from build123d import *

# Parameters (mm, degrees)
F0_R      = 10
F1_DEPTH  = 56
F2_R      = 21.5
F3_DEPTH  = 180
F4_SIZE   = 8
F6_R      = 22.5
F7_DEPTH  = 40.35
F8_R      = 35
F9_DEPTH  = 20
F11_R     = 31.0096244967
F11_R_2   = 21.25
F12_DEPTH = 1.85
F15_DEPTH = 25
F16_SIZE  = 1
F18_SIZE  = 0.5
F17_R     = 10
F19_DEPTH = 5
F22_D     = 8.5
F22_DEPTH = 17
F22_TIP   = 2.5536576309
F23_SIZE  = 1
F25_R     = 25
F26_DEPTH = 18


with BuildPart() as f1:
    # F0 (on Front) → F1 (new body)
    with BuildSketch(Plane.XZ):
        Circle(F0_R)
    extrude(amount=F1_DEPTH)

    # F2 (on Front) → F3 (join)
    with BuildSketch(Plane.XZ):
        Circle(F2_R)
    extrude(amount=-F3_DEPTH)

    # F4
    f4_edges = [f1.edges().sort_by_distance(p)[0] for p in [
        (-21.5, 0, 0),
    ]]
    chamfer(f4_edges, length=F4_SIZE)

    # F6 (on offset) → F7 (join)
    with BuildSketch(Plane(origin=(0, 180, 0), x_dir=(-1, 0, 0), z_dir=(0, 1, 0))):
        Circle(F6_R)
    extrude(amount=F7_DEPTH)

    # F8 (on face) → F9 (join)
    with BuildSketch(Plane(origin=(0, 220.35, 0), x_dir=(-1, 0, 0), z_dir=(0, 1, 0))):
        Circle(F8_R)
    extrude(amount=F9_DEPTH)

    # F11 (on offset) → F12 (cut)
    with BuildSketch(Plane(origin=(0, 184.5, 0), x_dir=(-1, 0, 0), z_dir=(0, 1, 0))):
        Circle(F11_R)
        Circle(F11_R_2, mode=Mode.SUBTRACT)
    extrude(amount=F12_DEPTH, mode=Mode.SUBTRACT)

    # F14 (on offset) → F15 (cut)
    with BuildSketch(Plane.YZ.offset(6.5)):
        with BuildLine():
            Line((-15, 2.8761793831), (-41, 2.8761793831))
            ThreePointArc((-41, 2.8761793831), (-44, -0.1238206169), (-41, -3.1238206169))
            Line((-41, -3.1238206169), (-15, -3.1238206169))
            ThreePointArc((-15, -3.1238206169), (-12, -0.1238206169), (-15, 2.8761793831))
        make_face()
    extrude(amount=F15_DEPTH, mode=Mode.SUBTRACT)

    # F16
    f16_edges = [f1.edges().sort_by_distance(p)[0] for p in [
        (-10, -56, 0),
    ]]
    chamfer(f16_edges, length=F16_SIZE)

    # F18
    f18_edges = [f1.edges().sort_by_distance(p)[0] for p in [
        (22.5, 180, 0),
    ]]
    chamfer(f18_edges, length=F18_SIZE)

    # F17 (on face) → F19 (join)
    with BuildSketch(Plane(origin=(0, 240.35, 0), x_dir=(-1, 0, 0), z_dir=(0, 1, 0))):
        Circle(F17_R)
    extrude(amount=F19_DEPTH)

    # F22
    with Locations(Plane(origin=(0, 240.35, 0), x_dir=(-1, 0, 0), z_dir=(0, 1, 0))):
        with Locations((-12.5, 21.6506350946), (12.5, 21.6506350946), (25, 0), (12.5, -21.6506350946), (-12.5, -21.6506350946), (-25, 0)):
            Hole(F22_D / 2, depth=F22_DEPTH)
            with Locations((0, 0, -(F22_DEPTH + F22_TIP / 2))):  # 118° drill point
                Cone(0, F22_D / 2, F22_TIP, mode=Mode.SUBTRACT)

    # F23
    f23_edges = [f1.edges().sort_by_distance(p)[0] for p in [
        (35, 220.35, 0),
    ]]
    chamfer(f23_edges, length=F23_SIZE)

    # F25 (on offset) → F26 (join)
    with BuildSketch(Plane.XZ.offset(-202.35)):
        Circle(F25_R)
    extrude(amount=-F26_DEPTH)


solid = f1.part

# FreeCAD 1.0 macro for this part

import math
import FreeCAD as App
import Part
import Sketcher
from FreeCAD import Vector
Q = App.Units.Quantity


def edges_at(feature, points):
    """Names of the edges that pass closest to the given points."""
    edges = feature.Shape.Edges
    near = lambda p: min(range(len(edges)), key=lambda i: edges[i].distToShape(Part.Vertex(*p))[0])
    return sorted({f"Edge{near(p) + 1}" for p in points})

doc = App.newDocument("Part")
body = doc.addObject("PartDesign::Body", "Body")

# Sketch on XZ plane
sketch1 = body.newObject("Sketcher::SketchObject", "Sketch")
sketch1.AttachmentSupport = (doc.getObject("XZ_Plane"), [""])
sketch1.MapMode = "FlatFace"
sketch1.addGeometry(Part.Circle(Vector(0, 0, 0), Vector(0, 0, 1), 10), False)
sketch1.addConstraint(Sketcher.Constraint("Coincident", 0, 3, -1, 1))
sketch1.addConstraint(Sketcher.Constraint("Diameter", 0, Q("20 mm")))
pad1 = body.newObject("PartDesign::Pad", "Pad")
pad1.Profile = sketch1
pad1.Length = 56

# Sketch on XZ plane
sketch2 = body.newObject("Sketcher::SketchObject", "Sketch001")
sketch2.AttachmentSupport = (doc.getObject("XZ_Plane"), [""])
sketch2.MapMode = "FlatFace"
sketch2.addGeometry(Part.Circle(Vector(0, 0, 0), Vector(0, 0, 1), 22), False)
sketch2.addConstraint(Sketcher.Constraint("Coincident", 0, 3, -1, 1))
sketch2.addConstraint(Sketcher.Constraint("Diameter", 0, Q("43 mm")))
pad2 = body.newObject("PartDesign::Pad", "Pad001")
pad2.Profile = sketch2
pad2.Length = 180
pad2.Reversed = True
doc.recompute()

chamfer = body.newObject("PartDesign::Chamfer", "Chamfer")
chamfer.Base = (pad2, edges_at(pad2, [(-21.5, 0, 0)]))
chamfer.Size = 8

# Sketch on XZ plane
sketch3 = body.newObject("Sketcher::SketchObject", "Sketch002")
sketch3.AttachmentSupport = (doc.getObject("XZ_Plane"), [""])
sketch3.MapMode = "FlatFace"
sketch3.AttachmentOffset = App.Placement(Vector(0, 0, -180), App.Rotation())
sketch3.addGeometry(Part.Circle(Vector(0, 0, 0), Vector(0, 0, 1), 22), False)
sketch3.addConstraint(Sketcher.Constraint("Coincident", 0, 3, -1, 1))
sketch3.addConstraint(Sketcher.Constraint("Diameter", 0, Q("45 mm")))
pad3 = body.newObject("PartDesign::Pad", "Pad002")
pad3.Profile = sketch3
pad3.Length = 40.35
pad3.Reversed = True

# Sketch on XZ plane
sketch4 = body.newObject("Sketcher::SketchObject", "Sketch003")
sketch4.AttachmentSupport = (doc.getObject("XZ_Plane"), [""])
sketch4.MapMode = "FlatFace"
sketch4.AttachmentOffset = App.Placement(Vector(0, 0, -220.35), App.Rotation())
sketch4.addGeometry(Part.Circle(Vector(0, 0, 0), Vector(0, 0, 1), 35), False)
sketch4.addConstraint(Sketcher.Constraint("Coincident", 0, 3, -1, 1))
sketch4.addConstraint(Sketcher.Constraint("Diameter", 0, Q("70 mm")))
pad4 = body.newObject("PartDesign::Pad", "Pad003")
pad4.Profile = sketch4
pad4.Length = 20
pad4.Reversed = True

# Sketch on XZ plane
sketch5 = body.newObject("Sketcher::SketchObject", "Sketch004")
sketch5.AttachmentSupport = (doc.getObject("XZ_Plane"), [""])
sketch5.MapMode = "FlatFace"
sketch5.AttachmentOffset = App.Placement(Vector(0, 0, -184.5), App.Rotation())
sketch5.addGeometry(Part.Circle(Vector(0, 0, 0), Vector(0, 0, 1), 31), False)
sketch5.addGeometry(Part.Circle(Vector(0, 0, 0), Vector(0, 0, 1), 21), False)
sketch5.addConstraint(Sketcher.Constraint("Coincident", 0, 3, -1, 1))
sketch5.addConstraint(Sketcher.Constraint("Coincident", 1, 3, -1, 1))
sketch5.addConstraint(Sketcher.Constraint("Diameter", 1, Q("42.5 mm")))
sketch5.addConstraint(Sketcher.Constraint("Diameter", 0, Q("62.019249 mm")))
pocket1 = body.newObject("PartDesign::Pocket", "Pocket")
pocket1.Profile = sketch5
pocket1.Length = 1.85

# Sketch on YZ plane
sketch6 = body.newObject("Sketcher::SketchObject", "Sketch005")
sketch6.AttachmentSupport = (doc.getObject("YZ_Plane"), [""])
sketch6.MapMode = "FlatFace"
sketch6.AttachmentOffset = App.Placement(Vector(0, 0, 6.5), App.Rotation())
sketch6.addGeometry(Part.LineSegment(Vector(-15, 2.9, 0), Vector(-41, 2.9, 0)), False)
sketch6.addGeometry(Part.ArcOfCircle(Part.Circle(Vector(-41, -0.1, 0), Vector(0, 0, 1), 3), math.radians(90), math.radians(270)), False)
sketch6.addGeometry(Part.LineSegment(Vector(-41, -3.1, 0), Vector(-15, -3.1, 0)), False)
sketch6.addGeometry(Part.ArcOfCircle(Part.Circle(Vector(-15, -0.1, 0), Vector(0, 0, 1), 3), math.radians(-90), math.radians(90)), False)
sketch6.addConstraint(Sketcher.Constraint("Tangent", 0, 2, 1, 1))
sketch6.addConstraint(Sketcher.Constraint("Tangent", 1, 2, 2, 1))
sketch6.addConstraint(Sketcher.Constraint("Tangent", 2, 2, 3, 1))
sketch6.addConstraint(Sketcher.Constraint("Tangent", 3, 2, 0, 1))
sketch6.addConstraint(Sketcher.Constraint("Horizontal", 0))
sketch6.addConstraint(Sketcher.Constraint("Horizontal", 2))
sketch6.addConstraint(Sketcher.Constraint("Radius", 1, Q("3 mm")))
sketch6.addConstraint(Sketcher.Constraint("DistanceX", 0, 2, 0, 1, Q("26 mm")))
sketch6.addConstraint(Sketcher.Constraint("DistanceX", 1, 3, -1, 1, Q("41 mm")))
sketch6.addConstraint(Sketcher.Constraint("DistanceY", 1, 3, -1, 1, Q("0.123821 mm")))
pocket2 = body.newObject("PartDesign::Pocket", "Pocket001")
pocket2.Profile = sketch6
pocket2.Length = 25
pocket2.Reversed = True
doc.recompute()

chamfer2 = body.newObject("PartDesign::Chamfer", "Chamfer001")
chamfer2.Base = (pocket2, edges_at(pocket2, [(-10, -56, 0)]))
chamfer2.Size = 1
doc.recompute()

chamfer3 = body.newObject("PartDesign::Chamfer", "Chamfer002")
chamfer3.Base = (chamfer2, edges_at(chamfer2, [(22.5, 180, 0)]))
chamfer3.Size = 0.5

# Sketch on XZ plane
sketch7 = body.newObject("Sketcher::SketchObject", "Sketch006")
sketch7.AttachmentSupport = (doc.getObject("XZ_Plane"), [""])
sketch7.MapMode = "FlatFace"
sketch7.AttachmentOffset = App.Placement(Vector(0, 0, -240.35), App.Rotation())
sketch7.addGeometry(Part.Circle(Vector(0, 0, 0), Vector(0, 0, 1), 10), False)
sketch7.addConstraint(Sketcher.Constraint("Coincident", 0, 3, -1, 1))
sketch7.addConstraint(Sketcher.Constraint("Diameter", 0, Q("20 mm")))
pad5 = body.newObject("PartDesign::Pad", "Pad004")
pad5.Profile = sketch7
pad5.Length = 5
pad5.Reversed = True

# Sketch on XZ plane
sketch8 = body.newObject("Sketcher::SketchObject", "Sketch007")
sketch8.AttachmentSupport = (doc.getObject("XZ_Plane"), [""])
sketch8.MapMode = "FlatFace"
sketch8.AttachmentOffset = App.Placement(Vector(0, 0, -240.35), App.Rotation())
sketch8.addGeometry(Part.Circle(Vector(12.5, 21.7, 0), Vector(0, 0, 1), 4.2), False)
sketch8.addGeometry(Part.Circle(Vector(-12.5, 21.7, 0), Vector(0, 0, 1), 4.2), False)
sketch8.addGeometry(Part.Circle(Vector(-25, 0, 0), Vector(0, 0, 1), 4.2), False)
sketch8.addGeometry(Part.Circle(Vector(-12.5, -21.7, 0), Vector(0, 0, 1), 4.2), False)
sketch8.addGeometry(Part.Circle(Vector(12.5, -21.7, 0), Vector(0, 0, 1), 4.2), False)
sketch8.addGeometry(Part.Circle(Vector(25, 0, 0), Vector(0, 0, 1), 4.2), False)
sketch8.addConstraint(Sketcher.Constraint("Equal", 0, 1))
sketch8.addConstraint(Sketcher.Constraint("Equal", 1, 2))
sketch8.addConstraint(Sketcher.Constraint("Equal", 2, 3))
sketch8.addConstraint(Sketcher.Constraint("Equal", 3, 4))
sketch8.addConstraint(Sketcher.Constraint("Equal", 4, 5))
sketch8.addConstraint(Sketcher.Constraint("Symmetric", 0, 3, 3, 3, -1, 1))
sketch8.addConstraint(Sketcher.Constraint("Symmetric", 1, 3, 4, 3, -1, 1))
sketch8.addConstraint(Sketcher.Constraint("Symmetric", 2, 3, 5, 3, -1, 1))
sketch8.addConstraint(Sketcher.Constraint("Symmetric", 0, 3, 1, 3, -2))
sketch8.addConstraint(Sketcher.Constraint("PointOnObject", 2, 3, -1))
sketch8.addConstraint(Sketcher.Constraint("Diameter", 0, Q("8.5 mm")))
sketch8.addConstraint(Sketcher.Constraint("DistanceX", 2, 3, -1, 1, Q("25 mm")))
sketch8.addConstraint(Sketcher.Constraint("DistanceX", 1, 3, 0, 3, Q("25 mm")))
sketch8.addConstraint(Sketcher.Constraint("DistanceY", 3, 3, 1, 3, Q("43.30127 mm")))
doc.recompute()
hole = body.newObject("PartDesign::Hole", "Hole")
hole.Profile = sketch8
hole.ThreadType = "None"
hole.Diameter = 8.5
hole.DepthType = "Dimension"
hole.Depth = 17
hole.DrillPoint = "Angled"
hole.DrillPointAngle = 118
hole.Reversed = True
doc.recompute()

chamfer4 = body.newObject("PartDesign::Chamfer", "Chamfer003")
chamfer4.Base = (hole, edges_at(hole, [(35, 220.35, 0)]))
chamfer4.Size = 1

# Sketch on XZ plane
sketch9 = body.newObject("Sketcher::SketchObject", "Sketch008")
sketch9.AttachmentSupport = (doc.getObject("XZ_Plane"), [""])
sketch9.MapMode = "FlatFace"
sketch9.AttachmentOffset = App.Placement(Vector(0, 0, -202.35), App.Rotation())
sketch9.addGeometry(Part.Circle(Vector(0, 0, 0), Vector(0, 0, 1), 25), False)
sketch9.addConstraint(Sketcher.Constraint("Coincident", 0, 3, -1, 1))
sketch9.addConstraint(Sketcher.Constraint("Diameter", 0, Q("50 mm")))
pad6 = body.newObject("PartDesign::Pad", "Pad005")
pad6.Profile = sketch9
pad6.Length = 18
pad6.Reversed = True

doc.recompute()
